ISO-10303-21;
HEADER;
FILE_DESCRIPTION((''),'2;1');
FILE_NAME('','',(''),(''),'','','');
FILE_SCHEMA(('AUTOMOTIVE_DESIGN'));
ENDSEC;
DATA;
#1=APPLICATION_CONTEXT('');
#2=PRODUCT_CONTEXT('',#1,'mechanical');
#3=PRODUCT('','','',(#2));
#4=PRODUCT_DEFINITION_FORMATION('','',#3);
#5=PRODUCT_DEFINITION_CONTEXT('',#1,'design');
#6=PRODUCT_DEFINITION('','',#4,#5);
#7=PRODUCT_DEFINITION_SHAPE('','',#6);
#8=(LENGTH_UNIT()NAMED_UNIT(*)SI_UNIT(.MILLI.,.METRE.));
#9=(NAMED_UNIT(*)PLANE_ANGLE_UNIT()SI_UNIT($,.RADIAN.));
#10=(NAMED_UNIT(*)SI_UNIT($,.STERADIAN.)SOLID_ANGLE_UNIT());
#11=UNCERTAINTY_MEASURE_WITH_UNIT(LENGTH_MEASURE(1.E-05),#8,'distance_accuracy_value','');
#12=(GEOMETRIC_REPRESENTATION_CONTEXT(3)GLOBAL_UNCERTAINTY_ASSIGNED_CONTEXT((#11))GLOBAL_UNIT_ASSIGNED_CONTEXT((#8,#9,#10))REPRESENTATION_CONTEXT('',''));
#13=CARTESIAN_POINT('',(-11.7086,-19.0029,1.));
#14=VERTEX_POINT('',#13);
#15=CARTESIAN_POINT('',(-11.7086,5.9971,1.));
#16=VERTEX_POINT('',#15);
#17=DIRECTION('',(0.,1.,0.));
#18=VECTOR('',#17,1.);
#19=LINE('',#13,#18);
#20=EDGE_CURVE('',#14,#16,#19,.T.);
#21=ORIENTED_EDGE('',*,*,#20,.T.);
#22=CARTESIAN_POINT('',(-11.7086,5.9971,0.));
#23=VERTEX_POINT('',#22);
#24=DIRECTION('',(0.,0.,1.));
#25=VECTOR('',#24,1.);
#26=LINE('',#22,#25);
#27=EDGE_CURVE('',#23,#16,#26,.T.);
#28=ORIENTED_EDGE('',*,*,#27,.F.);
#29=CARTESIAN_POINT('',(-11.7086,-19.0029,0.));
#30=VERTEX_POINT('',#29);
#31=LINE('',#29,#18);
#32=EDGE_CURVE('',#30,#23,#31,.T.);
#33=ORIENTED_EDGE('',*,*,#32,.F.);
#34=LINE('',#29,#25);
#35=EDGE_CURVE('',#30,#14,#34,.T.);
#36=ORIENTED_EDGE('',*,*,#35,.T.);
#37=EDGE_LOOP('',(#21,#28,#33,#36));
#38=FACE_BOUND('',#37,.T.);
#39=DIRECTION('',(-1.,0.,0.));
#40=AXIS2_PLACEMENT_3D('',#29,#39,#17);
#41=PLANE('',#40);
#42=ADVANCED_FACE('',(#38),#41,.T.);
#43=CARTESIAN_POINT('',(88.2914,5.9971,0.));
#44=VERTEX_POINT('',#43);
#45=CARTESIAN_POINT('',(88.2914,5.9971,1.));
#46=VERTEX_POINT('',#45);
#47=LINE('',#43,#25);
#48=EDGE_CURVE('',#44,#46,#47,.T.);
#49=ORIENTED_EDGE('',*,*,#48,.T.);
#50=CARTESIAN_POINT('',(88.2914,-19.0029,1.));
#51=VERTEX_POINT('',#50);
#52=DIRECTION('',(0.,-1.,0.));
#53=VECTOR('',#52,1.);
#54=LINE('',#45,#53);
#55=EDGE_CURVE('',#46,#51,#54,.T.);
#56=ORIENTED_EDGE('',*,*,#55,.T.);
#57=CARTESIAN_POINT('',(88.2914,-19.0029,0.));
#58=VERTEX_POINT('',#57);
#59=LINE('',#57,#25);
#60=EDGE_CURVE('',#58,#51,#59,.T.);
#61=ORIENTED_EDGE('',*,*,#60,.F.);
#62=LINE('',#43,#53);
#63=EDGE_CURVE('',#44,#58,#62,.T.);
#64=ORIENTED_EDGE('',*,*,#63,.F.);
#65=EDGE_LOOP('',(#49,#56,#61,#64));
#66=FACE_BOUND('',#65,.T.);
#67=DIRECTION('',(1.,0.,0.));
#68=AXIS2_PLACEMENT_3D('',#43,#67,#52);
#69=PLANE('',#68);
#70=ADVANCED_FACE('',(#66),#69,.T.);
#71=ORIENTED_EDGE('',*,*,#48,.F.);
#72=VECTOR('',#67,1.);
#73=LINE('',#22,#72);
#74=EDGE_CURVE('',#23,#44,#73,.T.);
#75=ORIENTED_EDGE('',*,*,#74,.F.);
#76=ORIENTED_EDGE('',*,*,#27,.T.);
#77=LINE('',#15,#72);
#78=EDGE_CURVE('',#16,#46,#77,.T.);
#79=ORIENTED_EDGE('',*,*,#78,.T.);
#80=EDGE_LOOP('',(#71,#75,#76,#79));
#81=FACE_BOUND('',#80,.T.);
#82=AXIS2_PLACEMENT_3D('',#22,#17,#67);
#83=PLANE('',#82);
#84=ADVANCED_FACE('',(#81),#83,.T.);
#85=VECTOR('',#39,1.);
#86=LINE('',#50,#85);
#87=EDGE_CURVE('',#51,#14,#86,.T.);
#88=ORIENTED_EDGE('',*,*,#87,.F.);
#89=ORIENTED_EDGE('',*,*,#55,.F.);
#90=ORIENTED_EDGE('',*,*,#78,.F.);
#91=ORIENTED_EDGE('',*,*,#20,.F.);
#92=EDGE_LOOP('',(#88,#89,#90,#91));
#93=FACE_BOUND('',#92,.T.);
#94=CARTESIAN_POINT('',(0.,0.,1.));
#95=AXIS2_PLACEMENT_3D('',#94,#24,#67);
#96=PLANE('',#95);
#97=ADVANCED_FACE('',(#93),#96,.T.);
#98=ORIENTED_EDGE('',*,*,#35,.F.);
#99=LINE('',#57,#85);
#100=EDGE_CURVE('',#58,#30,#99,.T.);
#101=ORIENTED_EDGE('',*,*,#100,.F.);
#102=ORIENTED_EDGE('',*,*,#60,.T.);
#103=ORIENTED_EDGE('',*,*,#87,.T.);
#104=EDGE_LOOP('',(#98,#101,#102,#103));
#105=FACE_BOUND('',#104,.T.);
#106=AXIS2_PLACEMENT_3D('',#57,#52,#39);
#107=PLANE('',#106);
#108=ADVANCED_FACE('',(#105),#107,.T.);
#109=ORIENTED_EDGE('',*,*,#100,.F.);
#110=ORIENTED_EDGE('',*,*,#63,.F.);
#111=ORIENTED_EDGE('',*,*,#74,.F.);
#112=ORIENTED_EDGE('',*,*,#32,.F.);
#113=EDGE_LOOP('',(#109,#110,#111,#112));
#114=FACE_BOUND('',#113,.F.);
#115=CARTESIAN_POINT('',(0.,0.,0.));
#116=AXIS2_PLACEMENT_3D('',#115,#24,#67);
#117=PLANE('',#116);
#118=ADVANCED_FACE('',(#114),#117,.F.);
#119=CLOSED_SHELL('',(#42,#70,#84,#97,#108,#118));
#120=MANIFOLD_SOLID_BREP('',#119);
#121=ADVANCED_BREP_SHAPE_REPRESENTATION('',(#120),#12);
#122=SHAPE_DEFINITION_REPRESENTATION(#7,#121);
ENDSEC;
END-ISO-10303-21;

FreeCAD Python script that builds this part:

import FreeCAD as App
import Part
import Sketcher

doc = App.newDocument("Part")
body = doc.addObject("PartDesign::Body", "Body")

# Sketch on XY plane
sketch1 = body.newObject("Sketcher::SketchObject", "Sketch")
sketch1.AttachmentSupport = (doc.getObject("XY_Plane"), [""])
sketch1.MapMode = "FlatFace"
sketch1.addGeometry([
    Part.LineSegment(App.Vector(88, 6, 0), App.Vector(-12, 6, 0)),
    Part.LineSegment(App.Vector(-12, 6, 0), App.Vector(-12, -19, 0)),
    Part.LineSegment(App.Vector(-12, -19, 0), App.Vector(88, -19, 0)),
    Part.LineSegment(App.Vector(88, -19, 0), App.Vector(88, 6, 0)),
], False)
sketch1.addConstraint([
    Sketcher.Constraint("Coincident", 0, 2, 1, 1),
    Sketcher.Constraint("Coincident", 1, 2, 2, 1),
    Sketcher.Constraint("Coincident", 2, 2, 3, 1),
    Sketcher.Constraint("Coincident", 3, 2, 0, 1),
    Sketcher.Constraint("Horizontal", 0),
    Sketcher.Constraint("Vertical", 1),
    Sketcher.Constraint("Horizontal", 2),
    Sketcher.Constraint("Vertical", 3),
    Sketcher.Constraint("DistanceX", 0, 2, 0, 1, 100.0),
    Sketcher.Constraint("DistanceY", 1, 2, 1, 1, 25.0),
    Sketcher.Constraint("DistanceY", -1, 1, 0, 2, 5.997),
    Sketcher.Constraint("DistanceX", 0, 2, -1, 1, 11.7086),
])
pad1 = body.newObject("PartDesign::Pad", "Pad")
pad1.Profile = sketch1
pad1.Length = 1

doc.recompute()
